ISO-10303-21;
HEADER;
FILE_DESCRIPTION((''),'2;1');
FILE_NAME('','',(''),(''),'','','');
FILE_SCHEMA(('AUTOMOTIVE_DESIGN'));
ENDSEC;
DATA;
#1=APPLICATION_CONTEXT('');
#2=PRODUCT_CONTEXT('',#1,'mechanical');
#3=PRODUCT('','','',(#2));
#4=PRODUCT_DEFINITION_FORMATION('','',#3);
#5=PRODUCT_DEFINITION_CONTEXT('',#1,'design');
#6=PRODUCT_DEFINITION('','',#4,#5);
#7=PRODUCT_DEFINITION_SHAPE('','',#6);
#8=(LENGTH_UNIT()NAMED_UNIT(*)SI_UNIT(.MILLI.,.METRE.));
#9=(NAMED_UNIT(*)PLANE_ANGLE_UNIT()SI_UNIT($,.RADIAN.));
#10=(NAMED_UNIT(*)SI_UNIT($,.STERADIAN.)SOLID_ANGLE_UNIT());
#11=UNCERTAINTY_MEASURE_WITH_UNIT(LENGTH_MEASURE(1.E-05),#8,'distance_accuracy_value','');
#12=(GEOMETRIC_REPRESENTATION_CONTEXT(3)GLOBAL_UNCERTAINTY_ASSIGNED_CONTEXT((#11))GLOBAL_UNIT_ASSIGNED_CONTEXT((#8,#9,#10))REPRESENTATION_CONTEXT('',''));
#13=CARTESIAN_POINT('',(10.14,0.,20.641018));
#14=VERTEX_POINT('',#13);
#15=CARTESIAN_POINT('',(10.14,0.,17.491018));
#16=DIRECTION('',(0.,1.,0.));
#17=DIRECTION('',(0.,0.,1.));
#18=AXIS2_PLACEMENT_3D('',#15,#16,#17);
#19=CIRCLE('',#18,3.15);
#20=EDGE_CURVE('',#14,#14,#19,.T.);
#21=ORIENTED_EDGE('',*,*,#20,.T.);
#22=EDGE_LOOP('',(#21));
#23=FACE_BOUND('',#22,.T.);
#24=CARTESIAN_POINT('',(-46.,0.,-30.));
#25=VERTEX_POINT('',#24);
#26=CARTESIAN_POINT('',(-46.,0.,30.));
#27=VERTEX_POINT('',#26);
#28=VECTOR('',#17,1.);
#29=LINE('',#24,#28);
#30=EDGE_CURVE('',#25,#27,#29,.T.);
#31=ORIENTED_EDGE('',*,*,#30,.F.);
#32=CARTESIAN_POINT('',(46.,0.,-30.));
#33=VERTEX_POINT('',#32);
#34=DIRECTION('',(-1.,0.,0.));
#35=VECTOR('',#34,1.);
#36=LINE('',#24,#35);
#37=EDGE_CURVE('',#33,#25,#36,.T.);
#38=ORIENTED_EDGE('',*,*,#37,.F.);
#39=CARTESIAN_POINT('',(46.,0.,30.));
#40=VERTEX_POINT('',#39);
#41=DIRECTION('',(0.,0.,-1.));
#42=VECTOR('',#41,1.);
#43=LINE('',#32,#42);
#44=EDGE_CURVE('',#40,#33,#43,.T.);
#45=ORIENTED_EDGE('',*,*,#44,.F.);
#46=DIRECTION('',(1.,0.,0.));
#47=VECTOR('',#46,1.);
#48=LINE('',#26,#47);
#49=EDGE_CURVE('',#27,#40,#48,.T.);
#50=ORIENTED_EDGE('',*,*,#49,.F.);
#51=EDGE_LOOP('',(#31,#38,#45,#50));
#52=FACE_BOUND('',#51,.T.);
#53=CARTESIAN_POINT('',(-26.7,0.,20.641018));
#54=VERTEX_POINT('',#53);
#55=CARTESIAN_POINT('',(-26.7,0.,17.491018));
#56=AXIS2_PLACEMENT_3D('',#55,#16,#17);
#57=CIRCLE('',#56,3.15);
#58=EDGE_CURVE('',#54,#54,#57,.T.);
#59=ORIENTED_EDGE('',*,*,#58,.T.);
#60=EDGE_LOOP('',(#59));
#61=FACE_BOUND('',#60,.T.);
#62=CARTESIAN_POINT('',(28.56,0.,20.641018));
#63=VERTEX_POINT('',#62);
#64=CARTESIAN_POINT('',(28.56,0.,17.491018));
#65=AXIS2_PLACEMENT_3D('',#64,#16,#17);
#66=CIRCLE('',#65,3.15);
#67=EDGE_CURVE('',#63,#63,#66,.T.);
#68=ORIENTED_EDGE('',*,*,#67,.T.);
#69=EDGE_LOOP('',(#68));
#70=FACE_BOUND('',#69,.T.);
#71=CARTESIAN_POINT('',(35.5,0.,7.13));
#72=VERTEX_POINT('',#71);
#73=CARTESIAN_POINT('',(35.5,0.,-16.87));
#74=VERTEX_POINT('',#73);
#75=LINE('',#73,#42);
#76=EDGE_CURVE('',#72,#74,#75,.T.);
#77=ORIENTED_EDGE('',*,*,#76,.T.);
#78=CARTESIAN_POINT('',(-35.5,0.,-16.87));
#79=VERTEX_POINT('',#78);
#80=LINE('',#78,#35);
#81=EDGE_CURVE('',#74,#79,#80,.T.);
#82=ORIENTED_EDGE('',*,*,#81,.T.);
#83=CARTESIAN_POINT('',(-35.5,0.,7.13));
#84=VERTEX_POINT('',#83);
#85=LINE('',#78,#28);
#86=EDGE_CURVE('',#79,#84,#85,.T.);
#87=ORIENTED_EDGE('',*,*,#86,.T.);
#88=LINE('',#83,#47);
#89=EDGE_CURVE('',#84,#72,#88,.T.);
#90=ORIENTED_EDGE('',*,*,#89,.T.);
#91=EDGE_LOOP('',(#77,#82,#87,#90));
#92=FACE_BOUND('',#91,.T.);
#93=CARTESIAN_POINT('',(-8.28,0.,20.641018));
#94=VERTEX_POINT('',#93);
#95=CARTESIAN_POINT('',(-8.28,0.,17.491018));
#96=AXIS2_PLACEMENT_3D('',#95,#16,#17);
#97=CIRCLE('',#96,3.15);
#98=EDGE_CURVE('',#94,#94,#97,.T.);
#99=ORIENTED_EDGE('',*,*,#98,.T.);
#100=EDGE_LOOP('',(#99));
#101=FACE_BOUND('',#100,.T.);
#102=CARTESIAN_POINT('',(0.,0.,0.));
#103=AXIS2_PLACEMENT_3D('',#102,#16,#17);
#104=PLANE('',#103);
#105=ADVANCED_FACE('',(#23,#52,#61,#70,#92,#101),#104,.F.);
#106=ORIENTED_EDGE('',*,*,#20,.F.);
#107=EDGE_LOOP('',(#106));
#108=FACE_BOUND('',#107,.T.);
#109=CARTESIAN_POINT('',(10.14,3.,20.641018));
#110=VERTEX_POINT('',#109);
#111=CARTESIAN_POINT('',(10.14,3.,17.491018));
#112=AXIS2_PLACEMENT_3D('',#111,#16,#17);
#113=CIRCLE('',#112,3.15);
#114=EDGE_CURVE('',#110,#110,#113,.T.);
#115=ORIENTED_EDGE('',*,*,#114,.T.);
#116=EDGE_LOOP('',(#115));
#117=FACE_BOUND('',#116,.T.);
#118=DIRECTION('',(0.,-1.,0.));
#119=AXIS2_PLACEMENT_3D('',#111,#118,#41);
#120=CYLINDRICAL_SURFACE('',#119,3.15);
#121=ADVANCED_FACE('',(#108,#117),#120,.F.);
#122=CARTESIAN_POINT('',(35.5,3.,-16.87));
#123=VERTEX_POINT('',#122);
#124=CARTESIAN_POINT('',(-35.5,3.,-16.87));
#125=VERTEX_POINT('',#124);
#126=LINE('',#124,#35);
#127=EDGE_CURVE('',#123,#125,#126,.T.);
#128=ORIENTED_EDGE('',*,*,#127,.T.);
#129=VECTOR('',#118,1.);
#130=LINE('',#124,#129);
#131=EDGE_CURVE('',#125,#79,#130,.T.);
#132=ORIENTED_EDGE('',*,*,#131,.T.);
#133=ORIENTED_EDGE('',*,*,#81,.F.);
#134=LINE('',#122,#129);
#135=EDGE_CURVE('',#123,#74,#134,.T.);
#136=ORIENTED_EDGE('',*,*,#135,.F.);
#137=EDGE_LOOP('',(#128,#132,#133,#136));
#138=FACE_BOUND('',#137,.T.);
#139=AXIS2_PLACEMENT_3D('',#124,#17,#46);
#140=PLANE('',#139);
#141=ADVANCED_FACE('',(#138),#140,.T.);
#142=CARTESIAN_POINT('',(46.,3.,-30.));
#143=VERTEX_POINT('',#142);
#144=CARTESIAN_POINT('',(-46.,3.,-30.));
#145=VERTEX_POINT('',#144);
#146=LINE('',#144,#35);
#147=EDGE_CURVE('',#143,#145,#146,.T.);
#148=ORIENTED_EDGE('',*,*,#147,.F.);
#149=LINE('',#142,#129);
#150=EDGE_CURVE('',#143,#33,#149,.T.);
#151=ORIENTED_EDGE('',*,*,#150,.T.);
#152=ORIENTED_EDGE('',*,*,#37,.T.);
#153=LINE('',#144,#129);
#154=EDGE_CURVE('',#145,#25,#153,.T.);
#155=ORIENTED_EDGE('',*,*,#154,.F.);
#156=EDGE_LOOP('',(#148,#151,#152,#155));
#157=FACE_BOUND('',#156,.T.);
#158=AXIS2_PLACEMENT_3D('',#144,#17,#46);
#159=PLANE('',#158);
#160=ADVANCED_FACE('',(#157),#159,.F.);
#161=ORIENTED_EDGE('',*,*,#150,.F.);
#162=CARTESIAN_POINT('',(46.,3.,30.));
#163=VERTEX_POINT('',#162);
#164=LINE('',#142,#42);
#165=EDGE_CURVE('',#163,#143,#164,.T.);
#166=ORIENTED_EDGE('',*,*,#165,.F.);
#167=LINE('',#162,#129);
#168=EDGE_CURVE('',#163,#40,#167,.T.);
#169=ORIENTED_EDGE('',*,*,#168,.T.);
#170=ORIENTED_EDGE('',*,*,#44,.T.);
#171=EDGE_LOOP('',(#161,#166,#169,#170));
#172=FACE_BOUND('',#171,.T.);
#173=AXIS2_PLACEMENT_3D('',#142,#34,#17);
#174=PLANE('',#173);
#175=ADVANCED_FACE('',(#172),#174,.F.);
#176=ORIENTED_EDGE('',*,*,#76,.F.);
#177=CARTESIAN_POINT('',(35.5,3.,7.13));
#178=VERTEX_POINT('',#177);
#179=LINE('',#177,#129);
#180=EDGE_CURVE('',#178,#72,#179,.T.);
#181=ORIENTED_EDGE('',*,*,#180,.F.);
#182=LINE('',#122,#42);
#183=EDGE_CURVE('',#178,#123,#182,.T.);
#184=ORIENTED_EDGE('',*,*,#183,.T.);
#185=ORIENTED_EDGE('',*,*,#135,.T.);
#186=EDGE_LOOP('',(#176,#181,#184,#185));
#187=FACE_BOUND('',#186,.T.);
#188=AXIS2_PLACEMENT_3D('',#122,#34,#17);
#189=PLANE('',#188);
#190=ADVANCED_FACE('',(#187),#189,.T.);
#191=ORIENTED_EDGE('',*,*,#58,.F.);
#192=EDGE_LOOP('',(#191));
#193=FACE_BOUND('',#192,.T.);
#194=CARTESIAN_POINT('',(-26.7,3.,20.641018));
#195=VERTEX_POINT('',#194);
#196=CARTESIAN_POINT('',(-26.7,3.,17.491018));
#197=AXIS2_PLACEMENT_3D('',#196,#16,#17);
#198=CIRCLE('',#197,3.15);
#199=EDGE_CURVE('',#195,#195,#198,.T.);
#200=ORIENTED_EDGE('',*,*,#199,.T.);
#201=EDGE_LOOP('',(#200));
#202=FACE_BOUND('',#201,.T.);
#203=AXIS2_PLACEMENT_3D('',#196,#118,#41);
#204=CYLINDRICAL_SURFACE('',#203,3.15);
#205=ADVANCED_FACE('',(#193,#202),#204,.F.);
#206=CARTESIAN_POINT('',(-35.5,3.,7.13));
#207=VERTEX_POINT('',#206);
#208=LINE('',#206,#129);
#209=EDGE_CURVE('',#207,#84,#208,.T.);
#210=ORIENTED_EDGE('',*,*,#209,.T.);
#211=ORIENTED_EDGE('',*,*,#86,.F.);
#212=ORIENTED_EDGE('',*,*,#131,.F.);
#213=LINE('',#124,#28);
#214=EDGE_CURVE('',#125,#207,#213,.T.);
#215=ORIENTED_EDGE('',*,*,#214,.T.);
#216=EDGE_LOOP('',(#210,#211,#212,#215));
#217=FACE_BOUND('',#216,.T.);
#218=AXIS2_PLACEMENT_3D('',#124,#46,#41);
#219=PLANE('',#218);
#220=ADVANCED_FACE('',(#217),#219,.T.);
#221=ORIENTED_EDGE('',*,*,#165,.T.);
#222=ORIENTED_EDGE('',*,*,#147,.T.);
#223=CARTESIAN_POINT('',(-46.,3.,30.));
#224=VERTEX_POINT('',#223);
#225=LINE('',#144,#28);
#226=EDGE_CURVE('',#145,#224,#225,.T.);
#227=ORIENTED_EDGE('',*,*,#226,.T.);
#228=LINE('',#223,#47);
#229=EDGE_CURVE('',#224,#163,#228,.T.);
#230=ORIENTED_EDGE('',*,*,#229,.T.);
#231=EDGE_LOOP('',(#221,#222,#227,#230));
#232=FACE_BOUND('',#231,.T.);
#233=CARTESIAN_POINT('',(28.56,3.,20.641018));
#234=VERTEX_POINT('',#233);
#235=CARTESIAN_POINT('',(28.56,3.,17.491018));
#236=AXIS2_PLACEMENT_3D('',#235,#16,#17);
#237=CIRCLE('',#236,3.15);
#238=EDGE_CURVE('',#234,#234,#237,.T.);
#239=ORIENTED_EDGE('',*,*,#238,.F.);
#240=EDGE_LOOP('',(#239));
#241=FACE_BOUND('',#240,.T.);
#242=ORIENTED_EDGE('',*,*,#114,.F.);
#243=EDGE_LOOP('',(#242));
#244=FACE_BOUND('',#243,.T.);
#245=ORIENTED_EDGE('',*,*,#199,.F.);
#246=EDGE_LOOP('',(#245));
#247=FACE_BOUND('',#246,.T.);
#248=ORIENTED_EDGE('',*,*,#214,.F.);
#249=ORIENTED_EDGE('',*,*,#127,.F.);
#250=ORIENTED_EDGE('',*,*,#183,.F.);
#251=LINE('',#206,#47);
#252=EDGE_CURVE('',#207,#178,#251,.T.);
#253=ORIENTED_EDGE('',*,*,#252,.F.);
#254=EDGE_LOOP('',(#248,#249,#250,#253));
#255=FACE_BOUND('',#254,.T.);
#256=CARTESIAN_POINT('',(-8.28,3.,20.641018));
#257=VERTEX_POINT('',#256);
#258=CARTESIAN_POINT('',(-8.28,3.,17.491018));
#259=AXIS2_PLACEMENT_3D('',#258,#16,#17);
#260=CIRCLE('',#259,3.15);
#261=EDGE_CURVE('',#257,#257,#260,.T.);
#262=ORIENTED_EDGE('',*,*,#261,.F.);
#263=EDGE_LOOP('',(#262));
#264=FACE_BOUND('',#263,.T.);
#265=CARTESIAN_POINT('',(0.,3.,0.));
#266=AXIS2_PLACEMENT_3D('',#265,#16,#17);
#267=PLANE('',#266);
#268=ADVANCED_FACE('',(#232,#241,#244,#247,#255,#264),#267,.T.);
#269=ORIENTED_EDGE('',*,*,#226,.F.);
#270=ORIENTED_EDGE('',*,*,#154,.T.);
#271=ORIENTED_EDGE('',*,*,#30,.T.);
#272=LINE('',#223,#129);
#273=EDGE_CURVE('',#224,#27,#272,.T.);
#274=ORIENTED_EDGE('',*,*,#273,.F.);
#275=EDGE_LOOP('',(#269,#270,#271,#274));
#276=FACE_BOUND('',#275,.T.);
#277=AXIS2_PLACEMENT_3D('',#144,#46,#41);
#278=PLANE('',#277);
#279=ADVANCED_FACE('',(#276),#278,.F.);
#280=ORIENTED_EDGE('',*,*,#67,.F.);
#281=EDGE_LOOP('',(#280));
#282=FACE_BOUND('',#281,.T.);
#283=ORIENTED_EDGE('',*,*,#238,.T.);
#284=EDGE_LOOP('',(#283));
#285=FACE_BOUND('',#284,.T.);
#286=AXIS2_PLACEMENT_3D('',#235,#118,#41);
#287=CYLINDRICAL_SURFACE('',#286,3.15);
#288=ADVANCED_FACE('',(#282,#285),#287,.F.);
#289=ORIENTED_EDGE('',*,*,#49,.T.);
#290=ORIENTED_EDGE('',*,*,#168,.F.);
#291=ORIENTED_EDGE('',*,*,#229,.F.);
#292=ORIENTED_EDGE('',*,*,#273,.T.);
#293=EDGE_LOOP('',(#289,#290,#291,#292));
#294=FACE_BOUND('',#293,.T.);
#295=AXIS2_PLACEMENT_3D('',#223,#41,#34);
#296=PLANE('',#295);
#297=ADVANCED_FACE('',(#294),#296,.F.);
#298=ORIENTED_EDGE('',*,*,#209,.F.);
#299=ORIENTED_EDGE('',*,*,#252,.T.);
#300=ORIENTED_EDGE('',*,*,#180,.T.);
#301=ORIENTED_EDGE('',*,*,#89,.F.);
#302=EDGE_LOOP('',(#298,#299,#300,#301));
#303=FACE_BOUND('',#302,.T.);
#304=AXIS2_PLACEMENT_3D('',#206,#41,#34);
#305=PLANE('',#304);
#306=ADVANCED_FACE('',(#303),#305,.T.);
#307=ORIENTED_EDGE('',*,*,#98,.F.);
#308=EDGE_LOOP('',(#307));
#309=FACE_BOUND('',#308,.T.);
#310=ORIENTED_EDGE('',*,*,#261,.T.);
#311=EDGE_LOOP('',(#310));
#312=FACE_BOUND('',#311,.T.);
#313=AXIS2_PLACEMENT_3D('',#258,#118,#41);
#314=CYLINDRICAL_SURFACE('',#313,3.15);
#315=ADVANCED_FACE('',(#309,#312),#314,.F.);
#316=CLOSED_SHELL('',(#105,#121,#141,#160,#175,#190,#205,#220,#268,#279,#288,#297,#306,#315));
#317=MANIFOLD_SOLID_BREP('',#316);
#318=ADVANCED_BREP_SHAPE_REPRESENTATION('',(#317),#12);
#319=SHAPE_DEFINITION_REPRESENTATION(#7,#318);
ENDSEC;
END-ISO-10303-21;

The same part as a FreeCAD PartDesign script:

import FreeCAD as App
import Part
import Sketcher

V = App.Vector
Q = App.Units.Quantity

doc = App.newDocument("Part")
params = doc.addObject("Spreadsheet::Sheet", "Params")
for row, (alias, value) in enumerate([
    ("sketch1_diameter", "6.3 mm"),
    ("sketch1_width", "92 mm"),
    ("sketch1_width2", "71 mm"),
    ("sketch1_height", "60 mm"),
    ("sketch1_height2", "24 mm"),
    ("pad1_length", "3 mm"),
], start=1):
    params.set(f"A{row}", alias)
    params.set(f"B{row}", "=" + value)
    params.setAlias(f"B{row}", alias)

body = doc.addObject("PartDesign::Body", "Body")

# Sketch on XZ plane
sketch1 = body.newObject("Sketcher::SketchObject", "Sketch")
sketch1.AttachmentSupport = (doc.getObject("XZ_Plane"), [""])
sketch1.MapMode = "FlatFace"
sketch1.addGeometry(Part.LineSegment(V(-46, -30, 0), V(-46, 30, 0)), False)
sketch1.addGeometry(Part.LineSegment(V(-46, 30, 0), V(46, 30, 0)), False)
sketch1.addGeometry(Part.LineSegment(V(46, 30, 0), V(46, -30, 0)), False)
sketch1.addGeometry(Part.LineSegment(V(46, -30, 0), V(-46, -30, 0)), False)
sketch1.addGeometry(Part.Circle(V(-26.7, 17.5, 0), V(0, 0, 1), 3.1), False)
sketch1.addGeometry(Part.Circle(V(-8.3, 17.5, 0), V(0, 0, 1), 3.1), False)
sketch1.addGeometry(Part.Circle(V(10.1, 17.5, 0), V(0, 0, 1), 3.1), False)
sketch1.addGeometry(Part.Circle(V(28.6, 17.5, 0), V(0, 0, 1), 3.1), False)
sketch1.addGeometry(Part.LineSegment(V(35.5, 7.1, 0), V(-35.5, 7.1, 0)), False)
sketch1.addGeometry(Part.LineSegment(V(-35.5, 7.1, 0), V(-35.5, -16.9, 0)), False)
sketch1.addGeometry(Part.LineSegment(V(-35.5, -16.9, 0), V(35.5, -16.9, 0)), False)
sketch1.addGeometry(Part.LineSegment(V(35.5, -16.9, 0), V(35.5, 7.1, 0)), False)
sketch1.addConstraint(Sketcher.Constraint("Coincident", 0, 2, 1, 1))
sketch1.addConstraint(Sketcher.Constraint("Coincident", 1, 2, 2, 1))
sketch1.addConstraint(Sketcher.Constraint("Coincident", 2, 2, 3, 1))
sketch1.addConstraint(Sketcher.Constraint("Coincident", 3, 2, 0, 1))
sketch1.addConstraint(Sketcher.Constraint("Coincident", 8, 2, 9, 1))
sketch1.addConstraint(Sketcher.Constraint("Coincident", 9, 2, 10, 1))
sketch1.addConstraint(Sketcher.Constraint("Coincident", 10, 2, 11, 1))
sketch1.addConstraint(Sketcher.Constraint("Coincident", 11, 2, 8, 1))
sketch1.addConstraint(Sketcher.Constraint("Vertical", 0))
sketch1.addConstraint(Sketcher.Constraint("Horizontal", 1))
sketch1.addConstraint(Sketcher.Constraint("Vertical", 2))
sketch1.addConstraint(Sketcher.Constraint("Horizontal", 3))
sketch1.addConstraint(Sketcher.Constraint("Horizontal", 8))
sketch1.addConstraint(Sketcher.Constraint("Vertical", 9))
sketch1.addConstraint(Sketcher.Constraint("Horizontal", 10))
sketch1.addConstraint(Sketcher.Constraint("Vertical", 11))
sketch1.addConstraint(Sketcher.Constraint("Equal", 4, 5))
sketch1.addConstraint(Sketcher.Constraint("Equal", 5, 6))
sketch1.addConstraint(Sketcher.Constraint("Equal", 6, 7))
sketch1.addConstraint(Sketcher.Constraint("Symmetric", 0, 2, 2, 2, -1, 1))
sketch1.addConstraint(Sketcher.Constraint("Horizontal", 4, 3, 5, 3))
sketch1.addConstraint(Sketcher.Constraint("Horizontal", 5, 3, 6, 3))
sketch1.addConstraint(Sketcher.Constraint("Horizontal", 6, 3, 7, 3))
sketch1.addConstraint(Sketcher.Constraint("Diameter", 4, Q("6.3 mm")))
sketch1.addConstraint(Sketcher.Constraint("DistanceX", 1, 1, 1, 2, Q("92 mm")))
sketch1.addConstraint(Sketcher.Constraint("DistanceX", 8, 2, 8, 1, Q("71 mm")))
sketch1.addConstraint(Sketcher.Constraint("DistanceY", 0, 1, 0, 2, Q("60 mm")))
sketch1.addConstraint(Sketcher.Constraint("DistanceY", 9, 2, 9, 1, Q("24 mm")))
sketch1.addConstraint(Sketcher.Constraint("DistanceX", 4, 3, -1, 1, Q("26.7 mm")))
sketch1.addConstraint(Sketcher.Constraint("DistanceX", 8, 2, -1, 1, Q("35.5 mm")))
sketch1.addConstraint(Sketcher.Constraint("DistanceX", 5, 3, -1, 1, Q("8.28 mm")))
sketch1.addConstraint(Sketcher.Constraint("DistanceX", -1, 1, 6, 3, Q("10.14 mm")))
sketch1.addConstraint(Sketcher.Constraint("DistanceX", -1, 1, 7, 3, Q("28.56 mm")))
sketch1.addConstraint(Sketcher.Constraint("DistanceY", -1, 1, 8, 2, Q("7.13 mm")))
sketch1.addConstraint(Sketcher.Constraint("DistanceY", -1, 1, 4, 3, Q("17.491018 mm")))
sketch1.setExpression("Constraints[23]", "Params.sketch1_diameter")
sketch1.setExpression("Constraints[24]", "Params.sketch1_width")
sketch1.setExpression("Constraints[25]", "Params.sketch1_width2")
sketch1.setExpression("Constraints[26]", "Params.sketch1_height")
sketch1.setExpression("Constraints[27]", "Params.sketch1_height2")
pad1 = body.newObject("PartDesign::Pad", "Pad")
pad1.Profile = sketch1
pad1.setExpression("Length", "Params.pad1_length")
pad1.Reversed = True

doc.recompute()
